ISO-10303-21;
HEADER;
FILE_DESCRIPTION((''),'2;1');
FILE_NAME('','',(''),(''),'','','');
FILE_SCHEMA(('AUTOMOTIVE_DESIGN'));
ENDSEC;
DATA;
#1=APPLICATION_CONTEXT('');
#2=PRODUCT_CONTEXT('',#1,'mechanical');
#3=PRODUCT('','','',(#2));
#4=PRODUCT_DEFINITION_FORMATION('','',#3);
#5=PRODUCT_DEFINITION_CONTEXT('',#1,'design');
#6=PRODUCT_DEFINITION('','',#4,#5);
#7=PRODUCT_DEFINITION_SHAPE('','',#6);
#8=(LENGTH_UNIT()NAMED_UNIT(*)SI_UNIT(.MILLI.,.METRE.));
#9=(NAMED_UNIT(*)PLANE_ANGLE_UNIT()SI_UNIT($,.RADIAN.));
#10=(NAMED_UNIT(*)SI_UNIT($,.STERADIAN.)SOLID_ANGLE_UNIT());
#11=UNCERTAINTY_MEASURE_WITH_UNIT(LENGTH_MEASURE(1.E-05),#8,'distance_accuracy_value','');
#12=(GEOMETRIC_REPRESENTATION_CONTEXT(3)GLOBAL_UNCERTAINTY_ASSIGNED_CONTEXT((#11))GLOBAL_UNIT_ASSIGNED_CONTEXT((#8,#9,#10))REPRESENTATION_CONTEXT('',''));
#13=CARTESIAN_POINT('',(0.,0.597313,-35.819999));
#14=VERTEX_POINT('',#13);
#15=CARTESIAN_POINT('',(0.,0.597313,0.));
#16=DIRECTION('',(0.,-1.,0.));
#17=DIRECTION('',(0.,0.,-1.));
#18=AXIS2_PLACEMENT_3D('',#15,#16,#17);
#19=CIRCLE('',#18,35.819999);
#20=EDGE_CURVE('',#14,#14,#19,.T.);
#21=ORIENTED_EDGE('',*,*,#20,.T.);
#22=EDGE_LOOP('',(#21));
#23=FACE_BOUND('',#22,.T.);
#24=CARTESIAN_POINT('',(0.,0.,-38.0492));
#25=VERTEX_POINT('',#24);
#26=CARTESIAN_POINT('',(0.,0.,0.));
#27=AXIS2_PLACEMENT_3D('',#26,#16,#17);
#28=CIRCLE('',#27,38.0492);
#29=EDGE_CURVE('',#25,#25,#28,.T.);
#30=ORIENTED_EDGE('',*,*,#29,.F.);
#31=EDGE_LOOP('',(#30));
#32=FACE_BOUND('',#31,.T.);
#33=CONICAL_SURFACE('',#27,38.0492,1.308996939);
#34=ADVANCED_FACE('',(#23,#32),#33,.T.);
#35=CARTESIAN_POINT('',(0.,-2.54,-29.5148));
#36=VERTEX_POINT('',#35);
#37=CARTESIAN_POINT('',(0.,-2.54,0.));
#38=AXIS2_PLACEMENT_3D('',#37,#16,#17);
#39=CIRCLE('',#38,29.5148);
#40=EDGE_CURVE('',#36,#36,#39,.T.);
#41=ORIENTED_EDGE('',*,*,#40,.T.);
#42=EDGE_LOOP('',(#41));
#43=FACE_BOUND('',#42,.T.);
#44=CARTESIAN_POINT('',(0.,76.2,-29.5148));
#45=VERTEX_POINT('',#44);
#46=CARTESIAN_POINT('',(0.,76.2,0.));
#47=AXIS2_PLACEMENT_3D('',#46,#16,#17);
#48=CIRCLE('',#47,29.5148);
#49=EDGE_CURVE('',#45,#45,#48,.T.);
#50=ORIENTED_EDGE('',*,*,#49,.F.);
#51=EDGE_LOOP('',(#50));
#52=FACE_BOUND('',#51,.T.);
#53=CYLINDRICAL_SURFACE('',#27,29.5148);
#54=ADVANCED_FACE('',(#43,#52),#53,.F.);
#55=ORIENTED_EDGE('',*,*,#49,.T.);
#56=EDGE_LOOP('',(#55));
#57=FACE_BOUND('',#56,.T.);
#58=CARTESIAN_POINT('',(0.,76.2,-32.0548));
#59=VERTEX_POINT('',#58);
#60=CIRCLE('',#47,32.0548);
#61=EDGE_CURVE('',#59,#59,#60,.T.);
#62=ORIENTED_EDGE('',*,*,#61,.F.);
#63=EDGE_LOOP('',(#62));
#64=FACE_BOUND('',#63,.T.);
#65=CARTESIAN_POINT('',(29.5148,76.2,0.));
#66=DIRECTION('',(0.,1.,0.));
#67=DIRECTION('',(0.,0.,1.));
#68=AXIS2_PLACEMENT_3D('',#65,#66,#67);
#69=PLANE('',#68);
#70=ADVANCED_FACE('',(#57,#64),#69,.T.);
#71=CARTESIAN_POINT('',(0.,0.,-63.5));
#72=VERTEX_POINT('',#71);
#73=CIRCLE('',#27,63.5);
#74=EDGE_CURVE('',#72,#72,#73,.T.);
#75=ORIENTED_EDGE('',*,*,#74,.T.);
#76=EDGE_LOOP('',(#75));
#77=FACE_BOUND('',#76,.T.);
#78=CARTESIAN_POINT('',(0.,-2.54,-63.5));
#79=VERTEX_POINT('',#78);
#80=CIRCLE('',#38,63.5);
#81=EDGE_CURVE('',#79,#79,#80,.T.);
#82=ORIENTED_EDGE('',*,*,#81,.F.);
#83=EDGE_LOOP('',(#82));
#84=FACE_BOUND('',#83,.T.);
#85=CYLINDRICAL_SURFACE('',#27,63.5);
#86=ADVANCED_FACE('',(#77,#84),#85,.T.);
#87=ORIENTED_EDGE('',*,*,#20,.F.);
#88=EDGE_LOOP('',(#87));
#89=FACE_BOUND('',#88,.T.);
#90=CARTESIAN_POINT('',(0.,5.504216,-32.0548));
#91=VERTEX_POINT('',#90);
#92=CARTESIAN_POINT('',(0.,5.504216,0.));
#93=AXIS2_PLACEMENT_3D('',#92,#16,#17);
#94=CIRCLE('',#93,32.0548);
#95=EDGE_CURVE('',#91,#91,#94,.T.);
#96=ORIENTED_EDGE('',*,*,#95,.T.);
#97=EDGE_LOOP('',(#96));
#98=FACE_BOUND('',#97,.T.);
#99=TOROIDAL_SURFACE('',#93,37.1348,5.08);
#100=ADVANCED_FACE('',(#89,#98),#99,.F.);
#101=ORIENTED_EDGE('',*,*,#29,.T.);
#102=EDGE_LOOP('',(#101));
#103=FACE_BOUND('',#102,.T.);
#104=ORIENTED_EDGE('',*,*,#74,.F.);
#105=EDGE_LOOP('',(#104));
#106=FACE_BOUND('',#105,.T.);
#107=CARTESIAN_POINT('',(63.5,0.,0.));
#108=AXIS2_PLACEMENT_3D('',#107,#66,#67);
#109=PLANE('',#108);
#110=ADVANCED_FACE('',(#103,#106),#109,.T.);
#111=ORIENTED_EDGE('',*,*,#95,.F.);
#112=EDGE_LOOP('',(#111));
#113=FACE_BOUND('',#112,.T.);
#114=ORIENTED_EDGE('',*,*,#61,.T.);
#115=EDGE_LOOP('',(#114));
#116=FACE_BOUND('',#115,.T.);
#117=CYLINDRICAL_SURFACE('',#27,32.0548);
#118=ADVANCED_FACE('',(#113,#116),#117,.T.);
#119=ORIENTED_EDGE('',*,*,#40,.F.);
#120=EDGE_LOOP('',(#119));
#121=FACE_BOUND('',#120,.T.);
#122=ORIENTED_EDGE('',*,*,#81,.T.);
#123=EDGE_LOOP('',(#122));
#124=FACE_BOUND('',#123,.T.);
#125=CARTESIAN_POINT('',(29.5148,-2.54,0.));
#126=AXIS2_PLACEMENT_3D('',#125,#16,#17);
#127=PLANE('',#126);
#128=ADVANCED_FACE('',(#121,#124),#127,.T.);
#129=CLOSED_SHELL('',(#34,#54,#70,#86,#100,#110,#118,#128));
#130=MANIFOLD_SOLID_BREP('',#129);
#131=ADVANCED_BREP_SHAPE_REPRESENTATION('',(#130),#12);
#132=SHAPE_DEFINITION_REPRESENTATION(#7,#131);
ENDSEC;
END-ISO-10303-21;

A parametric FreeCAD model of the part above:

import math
import FreeCAD as App
import Part
import Sketcher
Q = App.Units.Quantity

doc = App.newDocument("Part")
params = doc.addObject("Spreadsheet::Sheet", "Params")
for row, (alias, value) in enumerate([
    ("sketch1_radius", "0.2 in"),
    ("sketch1_width", "0.1 in"),
    ("sketch1_height", "3.1 in"),
    ("sketch1_width2", "1.338 in"),
    ("sketch1_width3", "1.002 in"),
    ("revolution_angle", "360 deg"),
], start=1):
    params.set(f"A{row}", alias)
    params.set(f"B{row}", "=" + value)
    params.setAlias(f"B{row}", alias)

body = doc.addObject("PartDesign::Body", "Body")

# Sketch on XY plane
sketch1 = body.newObject("Sketcher::SketchObject", "Sketch")
sketch1.AttachmentSupport = (doc.getObject("XY_Plane"), [""])
sketch1.MapMode = "FlatFace"
sketch1.addGeometry(Part.LineSegment(App.Vector(38.0492, 0, 0), App.Vector(35.819999, 0.597313, 0)), False)
sketch1.addGeometry(Part.ArcOfCircle(Part.Circle(App.Vector(37.1348, 5.504216, 0), App.Vector(0, 0, 1), 5.08), math.radians(180), math.radians(255)), False)
sketch1.addGeometry(Part.LineSegment(App.Vector(32.0548, 5.504216, 0), App.Vector(32.0548, 76.2, 0)), False)
sketch1.addGeometry(Part.LineSegment(App.Vector(32.0548, 76.2, 0), App.Vector(29.5148, 76.2, 0)), False)
sketch1.addGeometry(Part.LineSegment(App.Vector(29.5148, 76.2, 0), App.Vector(29.5148, -2.54, 0)), False)
sketch1.addGeometry(Part.LineSegment(App.Vector(29.5148, -2.54, 0), App.Vector(63.5, -2.54, 0)), False)
sketch1.addGeometry(Part.LineSegment(App.Vector(63.5, -2.54, 0), App.Vector(63.5, 0, 0)), False)
sketch1.addGeometry(Part.LineSegment(App.Vector(63.5, 0, 0), App.Vector(38.0492, 0, 0)), False)
sketch1.addConstraint(Sketcher.Constraint("Tangent", 0, 2, 1, 2))
sketch1.addConstraint(Sketcher.Constraint("Tangent", 1, 1, 2, 1))
sketch1.addConstraint(Sketcher.Constraint("Coincident", 2, 2, 3, 1))
sketch1.addConstraint(Sketcher.Constraint("Coincident", 3, 2, 4, 1))
sketch1.addConstraint(Sketcher.Constraint("Coincident", 4, 2, 5, 1))
sketch1.addConstraint(Sketcher.Constraint("Coincident", 5, 2, 6, 1))
sketch1.addConstraint(Sketcher.Constraint("Coincident", 6, 2, 7, 1))
sketch1.addConstraint(Sketcher.Constraint("Coincident", 7, 2, 0, 1))
sketch1.addConstraint(Sketcher.Constraint("Vertical", 2))
sketch1.addConstraint(Sketcher.Constraint("Horizontal", 3))
sketch1.addConstraint(Sketcher.Constraint("Vertical", 4))
sketch1.addConstraint(Sketcher.Constraint("Horizontal", 5))
sketch1.addConstraint(Sketcher.Constraint("Vertical", 6))
sketch1.addConstraint(Sketcher.Constraint("Horizontal", 7))
sketch1.addConstraint(Sketcher.Constraint("PointOnObject", 6, 2, -1))
sketch1.addConstraint(Sketcher.Constraint("Equal", 3, 6))
sketch1.addConstraint(Sketcher.Constraint("Radius", 1, Q("0.2 in")))
sketch1.addConstraint(Sketcher.Constraint("DistanceX", 3, 2, 3, 1, Q("0.1 in")))
sketch1.addConstraint(Sketcher.Constraint("DistanceY", 4, 2, 4, 1, Q("3.1 in")))
sketch1.addConstraint(Sketcher.Constraint("Angle", 0, Q("165 deg")))
sketch1.addConstraint(Sketcher.Constraint("DistanceX", -1, 1, 5, 2, Q("2.5 in")))
sketch1.addConstraint(Sketcher.Constraint("DistanceX", 5, 1, 5, 2, Q("1.338 in")))
sketch1.addConstraint(Sketcher.Constraint("DistanceX", 7, 2, 7, 1, Q("1.002 in")))
sketch1.setExpression("Constraints[16]", "Params.sketch1_radius")
sketch1.setExpression("Constraints[17]", "Params.sketch1_width")
sketch1.setExpression("Constraints[18]", "Params.sketch1_height")
sketch1.setExpression("Constraints[21]", "Params.sketch1_width2")
sketch1.setExpression("Constraints[22]", "Params.sketch1_width3")
revolution = body.newObject("PartDesign::Revolution", "Revolution")
revolution.Profile = sketch1
revolution.ReferenceAxis = (sketch1, ["V_Axis"])
revolution.setExpression("Angle", "Params.revolution_angle")

doc.recompute()
